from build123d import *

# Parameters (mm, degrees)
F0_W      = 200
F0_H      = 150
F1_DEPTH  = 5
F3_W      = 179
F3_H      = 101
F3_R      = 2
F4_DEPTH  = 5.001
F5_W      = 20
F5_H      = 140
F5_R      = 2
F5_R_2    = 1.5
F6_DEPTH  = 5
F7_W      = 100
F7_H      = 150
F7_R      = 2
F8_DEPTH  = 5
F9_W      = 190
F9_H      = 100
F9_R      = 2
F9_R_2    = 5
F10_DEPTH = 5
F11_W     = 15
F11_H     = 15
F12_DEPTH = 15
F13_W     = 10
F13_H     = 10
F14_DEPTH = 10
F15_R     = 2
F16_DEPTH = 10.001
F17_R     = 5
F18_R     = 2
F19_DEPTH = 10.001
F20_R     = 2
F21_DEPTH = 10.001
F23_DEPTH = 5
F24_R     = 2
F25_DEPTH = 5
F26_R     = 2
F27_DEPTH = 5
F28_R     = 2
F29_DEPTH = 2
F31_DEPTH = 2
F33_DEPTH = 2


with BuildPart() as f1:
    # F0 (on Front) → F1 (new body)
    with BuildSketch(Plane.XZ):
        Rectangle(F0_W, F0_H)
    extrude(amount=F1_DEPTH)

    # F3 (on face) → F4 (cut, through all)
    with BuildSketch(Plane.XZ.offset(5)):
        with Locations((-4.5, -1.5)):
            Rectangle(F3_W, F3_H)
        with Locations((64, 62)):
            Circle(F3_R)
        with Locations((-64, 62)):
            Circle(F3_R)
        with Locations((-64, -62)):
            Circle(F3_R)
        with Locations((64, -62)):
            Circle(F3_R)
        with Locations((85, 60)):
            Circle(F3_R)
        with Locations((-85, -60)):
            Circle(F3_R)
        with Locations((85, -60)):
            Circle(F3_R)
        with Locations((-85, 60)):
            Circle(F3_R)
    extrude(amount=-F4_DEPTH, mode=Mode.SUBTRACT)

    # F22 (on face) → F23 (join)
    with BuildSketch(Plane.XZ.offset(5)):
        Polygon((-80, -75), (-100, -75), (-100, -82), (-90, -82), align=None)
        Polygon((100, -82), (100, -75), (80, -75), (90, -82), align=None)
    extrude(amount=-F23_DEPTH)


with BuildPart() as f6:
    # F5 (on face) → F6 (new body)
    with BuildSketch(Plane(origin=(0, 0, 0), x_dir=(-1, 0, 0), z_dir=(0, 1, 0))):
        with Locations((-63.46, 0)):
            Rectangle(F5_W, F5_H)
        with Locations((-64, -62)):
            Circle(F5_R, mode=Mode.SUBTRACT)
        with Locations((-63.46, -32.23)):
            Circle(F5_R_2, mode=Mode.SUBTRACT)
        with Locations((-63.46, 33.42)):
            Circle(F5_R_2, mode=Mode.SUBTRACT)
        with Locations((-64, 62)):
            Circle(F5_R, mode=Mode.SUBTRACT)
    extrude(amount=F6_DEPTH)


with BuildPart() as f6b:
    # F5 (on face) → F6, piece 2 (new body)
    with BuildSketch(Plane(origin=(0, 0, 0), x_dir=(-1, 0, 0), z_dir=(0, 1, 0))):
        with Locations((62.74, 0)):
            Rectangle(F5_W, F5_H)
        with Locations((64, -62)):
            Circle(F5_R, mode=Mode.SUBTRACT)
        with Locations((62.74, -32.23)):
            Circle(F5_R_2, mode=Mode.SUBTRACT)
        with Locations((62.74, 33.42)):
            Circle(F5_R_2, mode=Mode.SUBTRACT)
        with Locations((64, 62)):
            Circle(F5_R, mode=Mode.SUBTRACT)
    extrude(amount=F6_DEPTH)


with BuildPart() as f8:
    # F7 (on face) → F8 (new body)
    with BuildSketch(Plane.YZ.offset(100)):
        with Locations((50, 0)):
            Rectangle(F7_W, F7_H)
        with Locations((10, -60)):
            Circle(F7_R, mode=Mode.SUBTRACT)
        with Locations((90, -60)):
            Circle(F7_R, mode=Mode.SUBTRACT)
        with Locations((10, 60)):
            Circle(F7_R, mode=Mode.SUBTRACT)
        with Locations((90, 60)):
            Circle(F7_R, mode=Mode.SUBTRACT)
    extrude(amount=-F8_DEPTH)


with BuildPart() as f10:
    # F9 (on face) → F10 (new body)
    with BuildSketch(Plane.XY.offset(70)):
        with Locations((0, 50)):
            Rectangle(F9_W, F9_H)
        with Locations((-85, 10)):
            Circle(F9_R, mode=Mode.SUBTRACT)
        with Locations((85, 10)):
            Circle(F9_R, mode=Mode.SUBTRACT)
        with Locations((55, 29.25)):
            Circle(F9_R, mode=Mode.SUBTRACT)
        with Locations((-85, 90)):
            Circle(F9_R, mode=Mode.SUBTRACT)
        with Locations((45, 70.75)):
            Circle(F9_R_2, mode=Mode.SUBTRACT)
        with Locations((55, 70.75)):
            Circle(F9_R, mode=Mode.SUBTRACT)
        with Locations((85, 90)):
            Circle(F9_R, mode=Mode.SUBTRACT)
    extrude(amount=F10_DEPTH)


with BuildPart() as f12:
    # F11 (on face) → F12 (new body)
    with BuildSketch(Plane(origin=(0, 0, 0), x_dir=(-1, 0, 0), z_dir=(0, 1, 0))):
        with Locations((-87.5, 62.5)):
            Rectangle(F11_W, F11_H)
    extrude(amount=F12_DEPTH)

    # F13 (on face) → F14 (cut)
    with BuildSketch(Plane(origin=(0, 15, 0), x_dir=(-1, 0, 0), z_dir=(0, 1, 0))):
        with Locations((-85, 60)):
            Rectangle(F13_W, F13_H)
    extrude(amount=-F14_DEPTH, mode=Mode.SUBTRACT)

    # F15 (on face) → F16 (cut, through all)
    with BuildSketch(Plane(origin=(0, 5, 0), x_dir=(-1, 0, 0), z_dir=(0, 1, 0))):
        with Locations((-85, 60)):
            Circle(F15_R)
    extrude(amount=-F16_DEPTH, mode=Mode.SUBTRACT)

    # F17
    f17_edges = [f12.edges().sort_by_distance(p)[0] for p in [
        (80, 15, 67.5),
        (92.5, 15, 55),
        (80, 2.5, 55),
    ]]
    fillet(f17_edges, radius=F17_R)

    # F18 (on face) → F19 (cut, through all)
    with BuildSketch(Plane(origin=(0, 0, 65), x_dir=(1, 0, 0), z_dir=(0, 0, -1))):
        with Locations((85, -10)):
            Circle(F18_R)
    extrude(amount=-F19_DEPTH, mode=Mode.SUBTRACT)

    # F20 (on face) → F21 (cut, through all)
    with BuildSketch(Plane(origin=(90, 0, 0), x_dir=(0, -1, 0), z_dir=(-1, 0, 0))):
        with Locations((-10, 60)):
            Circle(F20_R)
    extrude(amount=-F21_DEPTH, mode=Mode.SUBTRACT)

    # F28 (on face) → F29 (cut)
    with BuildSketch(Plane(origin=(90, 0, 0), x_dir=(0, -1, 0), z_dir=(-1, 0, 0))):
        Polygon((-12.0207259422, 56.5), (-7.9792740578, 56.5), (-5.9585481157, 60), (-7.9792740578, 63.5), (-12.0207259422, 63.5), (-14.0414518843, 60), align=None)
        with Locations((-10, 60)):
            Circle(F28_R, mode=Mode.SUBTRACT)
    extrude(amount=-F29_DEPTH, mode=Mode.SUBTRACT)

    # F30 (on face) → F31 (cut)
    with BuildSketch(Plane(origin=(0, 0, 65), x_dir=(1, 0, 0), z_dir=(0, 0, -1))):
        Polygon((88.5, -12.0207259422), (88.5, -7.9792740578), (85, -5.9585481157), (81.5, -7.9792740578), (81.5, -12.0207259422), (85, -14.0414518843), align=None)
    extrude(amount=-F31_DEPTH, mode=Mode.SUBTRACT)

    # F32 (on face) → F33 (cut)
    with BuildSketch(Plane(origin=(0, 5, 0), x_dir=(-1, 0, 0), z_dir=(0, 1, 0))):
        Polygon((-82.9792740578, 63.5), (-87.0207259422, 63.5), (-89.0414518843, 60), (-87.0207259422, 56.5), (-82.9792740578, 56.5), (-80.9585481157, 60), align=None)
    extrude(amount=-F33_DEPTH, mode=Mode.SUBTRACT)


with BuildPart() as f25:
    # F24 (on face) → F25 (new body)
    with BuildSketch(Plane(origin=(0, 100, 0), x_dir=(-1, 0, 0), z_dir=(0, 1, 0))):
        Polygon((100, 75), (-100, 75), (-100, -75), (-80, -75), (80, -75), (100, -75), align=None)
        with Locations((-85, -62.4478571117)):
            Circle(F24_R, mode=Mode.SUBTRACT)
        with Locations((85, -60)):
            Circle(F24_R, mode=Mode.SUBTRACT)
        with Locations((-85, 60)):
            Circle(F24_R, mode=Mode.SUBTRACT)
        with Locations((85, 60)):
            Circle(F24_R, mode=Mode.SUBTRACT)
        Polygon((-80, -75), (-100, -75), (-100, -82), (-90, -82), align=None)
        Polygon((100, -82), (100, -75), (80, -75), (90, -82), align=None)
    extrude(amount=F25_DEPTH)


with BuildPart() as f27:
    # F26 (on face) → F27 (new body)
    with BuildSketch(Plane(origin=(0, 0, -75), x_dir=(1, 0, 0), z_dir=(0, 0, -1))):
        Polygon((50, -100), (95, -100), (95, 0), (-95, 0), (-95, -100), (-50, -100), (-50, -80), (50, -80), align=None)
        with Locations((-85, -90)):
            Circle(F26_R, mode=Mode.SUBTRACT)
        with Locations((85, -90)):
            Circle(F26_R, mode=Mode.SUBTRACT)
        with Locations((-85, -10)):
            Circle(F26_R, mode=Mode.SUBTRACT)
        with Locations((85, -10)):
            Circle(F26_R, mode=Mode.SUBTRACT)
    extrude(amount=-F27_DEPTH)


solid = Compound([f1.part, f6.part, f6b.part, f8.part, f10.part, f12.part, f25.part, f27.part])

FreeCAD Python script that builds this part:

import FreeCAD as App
import Part
import Sketcher
Q = App.Units.Quantity


def edges_at(feature, points):
    """Names of the edges that pass closest to the given points."""
    edges = feature.Shape.Edges
    near = lambda p: min(range(len(edges)), key=lambda i: edges[i].distToShape(Part.Vertex(*p))[0])
    return sorted({f"Edge{near(p) + 1}" for p in points})

doc = App.newDocument("Part")
params = doc.addObject("Spreadsheet::Sheet", "Params")
for row, (alias, value) in enumerate([
    ("sketch1_width", "200 mm"),
    ("sketch1_height", "150 mm"),
    ("pad1_length", "5 mm"),
    ("sketch2_diameter", "4 mm"),
    ("sketch2_width", "179 mm"),
    ("sketch2_height", "101 mm"),
    ("sketch3_width", "20 mm"),
    ("sketch3_width2", "10 mm"),
    ("sketch3_height", "7 mm"),
    ("pad2_length", "5 mm"),
    ("sketch4_diameter", "4 mm"),
    ("sketch4_diameter2", "3 mm"),
    ("sketch4_width", "20 mm"),
    ("sketch4_height", "140 mm"),
    ("pad3_length", "5 mm"),
    ("sketch5_diameter", "3 mm"),
    ("sketch5_diameter2", "4 mm"),
    ("sketch5_width", "20 mm"),
    ("sketch5_height", "140 mm"),
    ("pad4_length", "5 mm"),
    ("sketch6_diameter", "4 mm"),
    ("sketch6_width", "100 mm"),
    ("sketch6_height", "150 mm"),
    ("pad5_length", "5 mm"),
    ("sketch7_diameter", "4 mm"),
    ("sketch7_diameter2", "10 mm"),
    ("sketch7_width", "190 mm"),
    ("sketch7_height", "100 mm"),
    ("pad6_length", "5 mm"),
    ("sketch8_width", "15 mm"),
    ("pad7_length", "15 mm"),
    ("sketch9_width", "10 mm"),
    ("pocket2_length", "10 mm"),
    ("sketch10_diameter", "4 mm"),
    ("fillet_radius", "5 mm"),
    ("sketch11_diameter", "4 mm"),
    ("sketch12_diameter", "4 mm"),
    ("sketch13_diameter", "4 mm"),
    ("pocket6_length", "2 mm"),
    ("pocket7_length", "2 mm"),
    ("pocket8_length", "2 mm"),
    ("sketch16_diameter", "4 mm"),
    ("sketch16_width", "200 mm"),
    ("sketch16_width2", "10 mm"),
    ("sketch16_width3", "160 mm"),
    ("sketch16_height", "157 mm"),
    ("pad8_length", "5 mm"),
    ("sketch17_diameter", "4 mm"),
    ("sketch17_width", "45 mm"),
    ("sketch17_width2", "190 mm"),
    ("sketch17_height", "20 mm"),
    ("pad9_length", "5 mm"),
], start=1):
    params.set(f"A{row}", alias)
    params.set(f"B{row}", "=" + value)
    params.setAlias(f"B{row}", alias)

body = doc.addObject("PartDesign::Body", "Body")

# Sketch on XZ plane
sketch1 = body.newObject("Sketcher::SketchObject", "Sketch")
sketch1.AttachmentSupport = (doc.getObject("XZ_Plane"), [""])
sketch1.MapMode = "FlatFace"
sketch1.addGeometry([
    Part.LineSegment(App.Vector(-100, 75, 0), App.Vector(-100, -75, 0)),
    Part.LineSegment(App.Vector(-100, -75, 0), App.Vector(100, -75, 0)),
    Part.LineSegment(App.Vector(100, -75, 0), App.Vector(100, 75, 0)),
    Part.LineSegment(App.Vector(100, 75, 0), App.Vector(-100, 75, 0)),
], False)
sketch1.addConstraint([
    Sketcher.Constraint("Coincident", 0, 2, 1, 1),
    Sketcher.Constraint("Coincident", 1, 2, 2, 1),
    Sketcher.Constraint("Coincident", 2, 2, 3, 1),
    Sketcher.Constraint("Coincident", 3, 2, 0, 1),
    Sketcher.Constraint("Vertical", 0),
    Sketcher.Constraint("Horizontal", 1),
    Sketcher.Constraint("Vertical", 2),
    Sketcher.Constraint("Horizontal", 3),
    Sketcher.Constraint("Symmetric", 0, 2, 2, 2, -1, 1),
    Sketcher.Constraint("DistanceX", 1, 1, 1, 2, 200.0),
    Sketcher.Constraint("DistanceY", 0, 2, 0, 1, 150.0),
])
sketch1.setExpression("Constraints[9]", "Params.sketch1_width")
sketch1.setExpression("Constraints[10]", "Params.sketch1_height")
pad1 = body.newObject("PartDesign::Pad", "Pad")
pad1.Profile = sketch1
pad1.setExpression("Length", "Params.pad1_length")

# Sketch on XZ plane
sketch2 = body.newObject("Sketcher::SketchObject", "Sketch001")
sketch2.AttachmentSupport = (doc.getObject("XZ_Plane"), [""])
sketch2.MapMode = "FlatFace"
sketch2.AttachmentOffset = App.Placement(App.Vector(0, 0, 5), App.Rotation())
sketch2.addGeometry([
    Part.LineSegment(App.Vector(-94, 49, 0), App.Vector(-94, -52, 0)),  # 0
    Part.LineSegment(App.Vector(-94, -52, 0), App.Vector(85, -52, 0)),  # 1
    Part.LineSegment(App.Vector(85, -52, 0), App.Vector(85, 49, 0)),  # 2
    Part.LineSegment(App.Vector(85, 49, 0), App.Vector(-94, 49, 0)),  # 3
    Part.Circle(App.Vector(64, 62, 0), App.Vector(0, 0, 1), 2),  # 4
    Part.Circle(App.Vector(-64, 62, 0), App.Vector(0, 0, 1), 2),  # 5
    Part.Circle(App.Vector(-64, -62, 0), App.Vector(0, 0, 1), 2),  # 6
    Part.Circle(App.Vector(64, -62, 0), App.Vector(0, 0, 1), 2),  # 7
    Part.Circle(App.Vector(85, 60, 0), App.Vector(0, 0, 1), 2),  # 8
    Part.Circle(App.Vector(-85, -60, 0), App.Vector(0, 0, 1), 2),  # 9
    Part.Circle(App.Vector(85, -60, 0), App.Vector(0, 0, 1), 2),  # 10
    Part.Circle(App.Vector(-85, 60, 0), App.Vector(0, 0, 1), 2),  # 11
], False)
sketch2.addConstraint([
    Sketcher.Constraint("Coincident", 0, 2, 1, 1),
    Sketcher.Constraint("Coincident", 1, 2, 2, 1),
    Sketcher.Constraint("Coincident", 2, 2, 3, 1),
    Sketcher.Constraint("Coincident", 3, 2, 0, 1),
    Sketcher.Constraint("Vertical", 0),
    Sketcher.Constraint("Horizontal", 1),
    Sketcher.Constraint("Vertical", 2),
    Sketcher.Constraint("Horizontal", 3),
    Sketcher.Constraint("Equal", 4, 5),
    Sketcher.Constraint("Equal", 5, 6),
    Sketcher.Constraint("Equal", 6, 7),
    Sketcher.Constraint("Equal", 7, 8),
    Sketcher.Constraint("Equal", 8, 9),
    Sketcher.Constraint("Equal", 9, 10),
    Sketcher.Constraint("Equal", 10, 11),
    Sketcher.Constraint("Symmetric", 4, 3, 6, 3, -1, 1),
    Sketcher.Constraint("Symmetric", 5, 3, 7, 3, -1, 1),
    Sketcher.Constraint("Symmetric", 8, 3, 9, 3, -1, 1),
    Sketcher.Constraint("Symmetric", 10, 3, 11, 3, -1, 1),
    Sketcher.Constraint("Symmetric", 4, 3, 5, 3, -2),
    Sketcher.Constraint("Symmetric", 9, 3, 10, 3, -2),
    Sketcher.Constraint("Vertical", 10, 3, 1, 2),
    Sketcher.Constraint("Diameter", 4, 4.0),
    Sketcher.Constraint("DistanceX", 1, 1, 1, 2, 179.0),
    Sketcher.Constraint("DistanceY", 0, 2, 0, 1, 101.0),
    Sketcher.Constraint("DistanceX", -1, 1, 4, 3, 64.0),
    Sketcher.Constraint("DistanceY", -1, 1, 4, 3, 62.0),
    Sketcher.Constraint("DistanceX", -1, 1, 8, 3, 85.0),
    Sketcher.Constraint("DistanceY", -1, 1, 8, 3, 60.0),
    Sketcher.Constraint("DistanceY", 0, 2, -1, 1, 52.0),
])
sketch2.setExpression("Constraints[22]", "Params.sketch2_diameter")
sketch2.setExpression("Constraints[23]", "Params.sketch2_width")
sketch2.setExpression("Constraints[24]", "Params.sketch2_height")
pocket1 = body.newObject("PartDesign::Pocket", "Pocket")
pocket1.Profile = sketch2
pocket1.Type = "ThroughAll"

# Sketch on XZ plane
sketch3 = body.newObject("Sketcher::SketchObject", "Sketch002")
sketch3.AttachmentSupport = (doc.getObject("XZ_Plane"), [""])
sketch3.MapMode = "FlatFace"
sketch3.AttachmentOffset = App.Placement(App.Vector(0, 0, 5), App.Rotation())
sketch3.addGeometry([
    Part.LineSegment(App.Vector(-80, -75, 0), App.Vector(-100, -75, 0)),  # 0
    Part.LineSegment(App.Vector(-100, -75, 0), App.Vector(-100, -82, 0)),  # 1
    Part.LineSegment(App.Vector(-100, -82, 0), App.Vector(-90, -82, 0)),  # 2
    Part.LineSegment(App.Vector(-90, -82, 0), App.Vector(-80, -75, 0)),  # 3
    Part.LineSegment(App.Vector(100, -82, 0), App.Vector(100, -75, 0)),  # 4
    Part.LineSegment(App.Vector(100, -75, 0), App.Vector(80, -75, 0)),  # 5
    Part.LineSegment(App.Vector(80, -75, 0), App.Vector(90, -82, 0)),  # 6
    Part.LineSegment(App.Vector(90, -82, 0), App.Vector(100, -82, 0)),  # 7
], False)
sketch3.addConstraint([
    Sketcher.Constraint("Coincident", 0, 2, 1, 1),
    Sketcher.Constraint("Coincident", 1, 2, 2, 1),
    Sketcher.Constraint("Coincident", 2, 2, 3, 1),
    Sketcher.Constraint("Coincident", 3, 2, 0, 1),
    Sketcher.Constraint("Coincident", 4, 2, 5, 1),
    Sketcher.Constraint("Coincident", 5, 2, 6, 1),
    Sketcher.Constraint("Coincident", 6, 2, 7, 1),
    Sketcher.Constraint("Coincident", 7, 2, 4, 1),
    Sketcher.Constraint("Horizontal", 0),
    Sketcher.Constraint("Vertical", 1),
    Sketcher.Constraint("Horizontal", 2),
    Sketcher.Constraint("Vertical", 4),
    Sketcher.Constraint("Horizontal", 5),
    Sketcher.Constraint("Horizontal", 7),
    Sketcher.Constraint("Symmetric", 0, 2, 4, 2, -2),
    Sketcher.Constraint("Symmetric", 2, 2, 6, 2, -2),
    Sketcher.Constraint("Equal", 0, 5),
    Sketcher.Constraint("DistanceX", 0, 2, 0, 1, 20.0),
    Sketcher.Constraint("DistanceX", 2, 1, 2, 2, 10.0),
    Sketcher.Constraint("DistanceY", 1, 2, 1, 1, 7.0),
    Sketcher.Constraint("DistanceX", 0, 2, -1, 1, 100.0),
    Sketcher.Constraint("DistanceY", 0, 2, -1, 1, 75.0),
])
sketch3.setExpression("Constraints[17]", "Params.sketch3_width")
sketch3.setExpression("Constraints[18]", "Params.sketch3_width2")
sketch3.setExpression("Constraints[19]", "Params.sketch3_height")
pad2 = body.newObject("PartDesign::Pad", "Pad001")
pad2.Profile = sketch3
pad2.setExpression("Length", "Params.pad2_length")
pad2.Reversed = True
body2 = doc.addObject("PartDesign::Body", "Body001")

# Sketch on XZ plane
sketch4 = body2.newObject("Sketcher::SketchObject", "Sketch003")
sketch4.AttachmentSupport = (doc.getObject("XZ_Plane001"), [""])
sketch4.MapMode = "FlatFace"
sketch4.addGeometry([
    Part.LineSegment(App.Vector(73.5, 70, 0), App.Vector(73.5, -70, 0)),  # 0
    Part.LineSegment(App.Vector(73.5, -70, 0), App.Vector(53.5, -70, 0)),  # 1
    Part.LineSegment(App.Vector(53.5, -70, 0), App.Vector(53.5, 70, 0)),  # 2
    Part.LineSegment(App.Vector(53.5, 70, 0), App.Vector(73.5, 70, 0)),  # 3
    Part.Circle(App.Vector(64, -62, 0), App.Vector(0, 0, 1), 2),  # 4
    Part.Circle(App.Vector(63.5, -32.2, 0), App.Vector(0, 0, 1), 1.5),  # 5
    Part.Circle(App.Vector(64, 62, 0), App.Vector(0, 0, 1), 2),  # 6
    Part.Circle(App.Vector(63.5, 33.4, 0), App.Vector(0, 0, 1), 1.5),  # 7
], False)
sketch4.addConstraint([
    Sketcher.Constraint("Coincident", 0, 2, 1, 1),
    Sketcher.Constraint("Coincident", 1, 2, 2, 1),
    Sketcher.Constraint("Coincident", 2, 2, 3, 1),
    Sketcher.Constraint("Coincident", 3, 2, 0, 1),
    Sketcher.Constraint("Vertical", 0),
    Sketcher.Constraint("Horizontal", 1),
    Sketcher.Constraint("Vertical", 2),
    Sketcher.Constraint("Horizontal", 3),
    Sketcher.Constraint("Equal", 4, 6),
    Sketcher.Constraint("Equal", 5, 7),
    Sketcher.Constraint("Symmetric", 4, 3, 6, 3, -1),
    Sketcher.Constraint("Vertical", 5, 3, 7, 3),
    Sketcher.Constraint("Diameter", 4, 4.0),
    Sketcher.Constraint("Diameter", 5, 3.0),
    Sketcher.Constraint("DistanceX", 1, 2, 1, 1, 20.0),
    Sketcher.Constraint("DistanceY", 0, 2, 0, 1, 140.0),
    Sketcher.Constraint("DistanceX", -1, 1, 4, 3, 64.0),
    Sketcher.Constraint("DistanceY", 4, 3, -1, 1, 62.0),
    Sketcher.Constraint("DistanceY", 0, 2, -1, 1, 70.0),
    Sketcher.Constraint("DistanceX", 5, 3, 0, 2, 10.0),
    Sketcher.Constraint("DistanceX", -1, 1, 5, 3, 63.46),
    Sketcher.Constraint("DistanceY", 5, 3, -1, 1, 32.23),
    Sketcher.Constraint("DistanceY", -1, 1, 7, 3, 33.42),
])
sketch4.setExpression("Constraints[12]", "Params.sketch4_diameter")
sketch4.setExpression("Constraints[13]", "Params.sketch4_diameter2")
sketch4.setExpression("Constraints[14]", "Params.sketch4_width")
sketch4.setExpression("Constraints[15]", "Params.sketch4_height")
pad3 = body2.newObject("PartDesign::Pad", "Pad002")
pad3.Profile = sketch4
pad3.setExpression("Length", "Params.pad3_length")
pad3.Reversed = True
body3 = doc.addObject("PartDesign::Body", "Body002")

# Sketch on XZ plane
sketch5 = body3.newObject("Sketcher::SketchObject", "Sketch004")
sketch5.AttachmentSupport = (doc.getObject("XZ_Plane002"), [""])
sketch5.MapMode = "FlatFace"
sketch5.addGeometry([
    Part.LineSegment(App.Vector(-52.7, 70, 0), App.Vector(-52.7, -70, 0)),  # 0
    Part.LineSegment(App.Vector(-52.7, -70, 0), App.Vector(-72.7, -70, 0)),  # 1
    Part.LineSegment(App.Vector(-72.7, -70, 0), App.Vector(-72.7, 70, 0)),  # 2
    Part.LineSegment(App.Vector(-72.7, 70, 0), App.Vector(-52.7, 70, 0)),  # 3
    Part.Circle(App.Vector(-62.7, -32.2, 0), App.Vector(0, 0, 1), 1.5),  # 4
    Part.Circle(App.Vector(-64, -62, 0), App.Vector(0, 0, 1), 2),  # 5
    Part.Circle(App.Vector(-62.7, 33.4, 0), App.Vector(0, 0, 1), 1.5),  # 6
    Part.Circle(App.Vector(-64, 62, 0), App.Vector(0, 0, 1), 2),  # 7
], False)
sketch5.addConstraint([
    Sketcher.Constraint("Coincident", 0, 2, 1, 1),
    Sketcher.Constraint("Coincident", 1, 2, 2, 1),
    Sketcher.Constraint("Coincident", 2, 2, 3, 1),
    Sketcher.Constraint("Coincident", 3, 2, 0, 1),
    Sketcher.Constraint("Vertical", 0),
    Sketcher.Constraint("Horizontal", 1),
    Sketcher.Constraint("Vertical", 2),
    Sketcher.Constraint("Horizontal", 3),
    Sketcher.Constraint("Equal", 4, 6),
    Sketcher.Constraint("Equal", 5, 7),
    Sketcher.Constraint("Symmetric", 5, 3, 7, 3, -1),
    Sketcher.Constraint("Vertical", 4, 3, 6, 3),
    Sketcher.Constraint("Diameter", 4, 3.0),
    Sketcher.Constraint("Diameter", 5, 4.0),
    Sketcher.Constraint("DistanceX", 1, 2, 1, 1, 20.0),
    Sketcher.Constraint("DistanceY", 0, 2, 0, 1, 140.0),
    Sketcher.Constraint("DistanceX", 5, 3, -1, 1, 64.0),
    Sketcher.Constraint("DistanceY", 5, 3, -1, 1, 62.0),
    Sketcher.Constraint("DistanceY", 0, 2, -1, 1, 70.0),
    Sketcher.Constraint("DistanceX", 4, 3, 0, 2, 10.0),
    Sketcher.Constraint("DistanceX", 4, 3, -1, 1, 62.74),
    Sketcher.Constraint("DistanceY", 4, 3, -1, 1, 32.23),
    Sketcher.Constraint("DistanceY", -1, 1, 6, 3, 33.42),
])
sketch5.setExpression("Constraints[12]", "Params.sketch5_diameter")
sketch5.setExpression("Constraints[13]", "Params.sketch5_diameter2")
sketch5.setExpression("Constraints[14]", "Params.sketch5_width")
sketch5.setExpression("Constraints[15]", "Params.sketch5_height")
pad4 = body3.newObject("PartDesign::Pad", "Pad003")
pad4.Profile = sketch5
pad4.setExpression("Length", "Params.pad4_length")
pad4.Reversed = True
body4 = doc.addObject("PartDesign::Body", "Body003")

# Sketch on YZ plane
sketch6 = body4.newObject("Sketcher::SketchObject", "Sketch005")
sketch6.AttachmentSupport = (doc.getObject("YZ_Plane003"), [""])
sketch6.MapMode = "FlatFace"
sketch6.AttachmentOffset = App.Placement(App.Vector(0, 0, 100), App.Rotation())
sketch6.addGeometry([
    Part.LineSegment(App.Vector(0, 75, 0), App.Vector(0, -75, 0)),  # 0
    Part.LineSegment(App.Vector(0, -75, 0), App.Vector(100, -75, 0)),  # 1
    Part.LineSegment(App.Vector(100, -75, 0), App.Vector(100, 75, 0)),  # 2
    Part.LineSegment(App.Vector(100, 75, 0), App.Vector(0, 75, 0)),  # 3
    Part.Circle(App.Vector(10, -60, 0), App.Vector(0, 0, 1), 2),  # 4
    Part.Circle(App.Vector(90, -60, 0), App.Vector(0, 0, 1), 2),  # 5
    Part.Circle(App.Vector(10, 60, 0), App.Vector(0, 0, 1), 2),  # 6
    Part.Circle(App.Vector(90, 60, 0), App.Vector(0, 0, 1), 2),  # 7
], False)
sketch6.addConstraint([
    Sketcher.Constraint("Coincident", 0, 2, 1, 1),
    Sketcher.Constraint("Coincident", 1, 2, 2, 1),
    Sketcher.Constraint("Coincident", 2, 2, 3, 1),
    Sketcher.Constraint("Coincident", 3, 2, 0, 1),
    Sketcher.Constraint("Vertical", 0),
    Sketcher.Constraint("Horizontal", 1),
    Sketcher.Constraint("Vertical", 2),
    Sketcher.Constraint("Horizontal", 3),
    Sketcher.Constraint("Equal", 4, 5),
    Sketcher.Constraint("Equal", 5, 6),
    Sketcher.Constraint("Equal", 6, 7),
    Sketcher.Constraint("Symmetric", 0, 2, 3, 2, -1, 1),
    Sketcher.Constraint("Symmetric", 4, 3, 6, 3, -1),
    Sketcher.Constraint("Symmetric", 5, 3, 7, 3, -1),
    Sketcher.Constraint("Horizontal", 4, 3, 5, 3),
    Sketcher.Constraint("Diameter", 4, 4.0),
    Sketcher.Constraint("DistanceX", 1, 1, 1, 2, 100.0),
    Sketcher.Constraint("DistanceY", 0, 2, 0, 1, 150.0),
    Sketcher.Constraint("DistanceX", -1, 1, 4, 3, 10.0),
    Sketcher.Constraint("DistanceY", 4, 3, -1, 1, 60.0),
    Sketcher.Constraint("DistanceX", -1, 1, 5, 3, 90.0),
])
sketch6.setExpression("Constraints[15]", "Params.sketch6_diameter")
sketch6.setExpression("Constraints[16]", "Params.sketch6_width")
sketch6.setExpression("Constraints[17]", "Params.sketch6_height")
pad5 = body4.newObject("PartDesign::Pad", "Pad004")
pad5.Profile = sketch6
pad5.setExpression("Length", "Params.pad5_length")
pad5.Reversed = True
body5 = doc.addObject("PartDesign::Body", "Body004")

# Sketch on XY plane
sketch7 = body5.newObject("Sketcher::SketchObject", "Sketch006")
sketch7.AttachmentSupport = (doc.getObject("XY_Plane004"), [""])
sketch7.MapMode = "FlatFace"
sketch7.AttachmentOffset = App.Placement(App.Vector(0, 0, 70), App.Rotation())
sketch7.addGeometry([
    Part.LineSegment(App.Vector(-95, 100, 0), App.Vector(-95, 0, 0)),  # 0
    Part.LineSegment(App.Vector(-95, 0, 0), App.Vector(95, 0, 0)),  # 1
    Part.LineSegment(App.Vector(95, 0, 0), App.Vector(95, 100, 0)),  # 2
    Part.LineSegment(App.Vector(95, 100, 0), App.Vector(-95, 100, 0)),  # 3
    Part.Circle(App.Vector(-85, 10, 0), App.Vector(0, 0, 1), 2),  # 4
    Part.Circle(App.Vector(85, 10, 0), App.Vector(0, 0, 1), 2),  # 5
    Part.Circle(App.Vector(55, 29.2, 0), App.Vector(0, 0, 1), 2),  # 6
    Part.Circle(App.Vector(-85, 90, 0), App.Vector(0, 0, 1), 2),  # 7
    Part.Circle(App.Vector(45, 70.8, 0), App.Vector(0, 0, 1), 5),  # 8
    Part.Circle(App.Vector(55, 70.8, 0), App.Vector(0, 0, 1), 2),  # 9
    Part.Circle(App.Vector(85, 90, 0), App.Vector(0, 0, 1), 2),  # 10
], False)
sketch7.addConstraint([
    Sketcher.Constraint("Coincident", 0, 2, 1, 1),
    Sketcher.Constraint("Coincident", 1, 2, 2, 1),
    Sketcher.Constraint("Coincident", 2, 2, 3, 1),
    Sketcher.Constraint("Coincident", 3, 2, 0, 1),
    Sketcher.Constraint("Vertical", 0),
    Sketcher.Constraint("Horizontal", 1),
    Sketcher.Constraint("Vertical", 2),
    Sketcher.Constraint("Horizontal", 3),
    Sketcher.Constraint("Equal", 4, 5),
    Sketcher.Constraint("Equal", 5, 6),
    Sketcher.Constraint("Equal", 6, 7),
    Sketcher.Constraint("Equal", 7, 9),
    Sketcher.Constraint("Equal", 9, 10),
    Sketcher.Constraint("Symmetric", 0, 2, 1, 2, -1, 1),
    Sketcher.Constraint("Symmetric", 4, 3, 5, 3, -2),
    Sketcher.Constraint("Symmetric", 7, 3, 10, 3, -2),
    Sketcher.Constraint("Horizontal", 8, 3, 9, 3),
    Sketcher.Constraint("Vertical", 4, 3, 7, 3),
    Sketcher.Constraint("Vertical", 6, 3, 9, 3),
    Sketcher.Constraint("Diameter", 4, 4.0),
    Sketcher.Constraint("Diameter", 8, 10.0),
    Sketcher.Constraint("DistanceX", 1, 1, 1, 2, 190.0),
    Sketcher.Constraint("DistanceY", 0, 2, 0, 1, 100.0),
    Sketcher.Constraint("DistanceX", 4, 3, -1, 1, 85.0),
    Sketcher.Constraint("DistanceY", -1, 1, 4, 3, 10.0),
    Sketcher.Constraint("DistanceX", -1, 1, 6, 3, 55.0),
    Sketcher.Constraint("DistanceY", -1, 1, 7, 3, 90.0),
    Sketcher.Constraint("DistanceX", -1, 1, 8, 3, 45.0),
    Sketcher.Constraint("DistanceY", 6, 3, 8, 3, 41.5),
    Sketcher.Constraint("DistanceY", -1, 1, 6, 3, 29.25),
])
sketch7.setExpression("Constraints[19]", "Params.sketch7_diameter")
sketch7.setExpression("Constraints[20]", "Params.sketch7_diameter2")
sketch7.setExpression("Constraints[21]", "Params.sketch7_width")
sketch7.setExpression("Constraints[22]", "Params.sketch7_height")
pad6 = body5.newObject("PartDesign::Pad", "Pad005")
pad6.Profile = sketch7
pad6.setExpression("Length", "Params.pad6_length")
body6 = doc.addObject("PartDesign::Body", "Body005")

# Sketch on XZ plane
sketch8 = body6.newObject("Sketcher::SketchObject", "Sketch007")
sketch8.AttachmentSupport = (doc.getObject("XZ_Plane005"), [""])
sketch8.MapMode = "FlatFace"
sketch8.addGeometry([
    Part.LineSegment(App.Vector(95, 70, 0), App.Vector(95, 55, 0)),
    Part.LineSegment(App.Vector(95, 55, 0), App.Vector(80, 55, 0)),
    Part.LineSegment(App.Vector(80, 55, 0), App.Vector(80, 70, 0)),
    Part.LineSegment(App.Vector(80, 70, 0), App.Vector(95, 70, 0)),
], False)
sketch8.addConstraint([
    Sketcher.Constraint("Coincident", 0, 2, 1, 1),
    Sketcher.Constraint("Coincident", 1, 2, 2, 1),
    Sketcher.Constraint("Coincident", 2, 2, 3, 1),
    Sketcher.Constraint("Coincident", 3, 2, 0, 1),
    Sketcher.Constraint("Vertical", 0),
    Sketcher.Constraint("Horizontal", 1),
    Sketcher.Constraint("Vertical", 2),
    Sketcher.Constraint("Horizontal", 3),
    Sketcher.Constraint("Equal", 3, 0),
    Sketcher.Constraint("DistanceX", 1, 2, 1, 1, 15.0),
    Sketcher.Constraint("DistanceX", -1, 1, 0, 2, 95.0),
    Sketcher.Constraint("DistanceY", -1, 1, 0, 2, 55.0),
])
sketch8.setExpression("Constraints[9]", "Params.sketch8_width")
pad7 = body6.newObject("PartDesign::Pad", "Pad006")
pad7.Profile = sketch8
pad7.setExpression("Length", "Params.pad7_length")
pad7.Reversed = True

# Sketch on XZ plane
sketch9 = body6.newObject("Sketcher::SketchObject", "Sketch008")
sketch9.AttachmentSupport = (doc.getObject("XZ_Plane005"), [""])
sketch9.MapMode = "FlatFace"
sketch9.AttachmentOffset = App.Placement(App.Vector(0, 0, -15), App.Rotation())
sketch9.addGeometry([
    Part.LineSegment(App.Vector(90, 65, 0), App.Vector(90, 55, 0)),
    Part.LineSegment(App.Vector(90, 55, 0), App.Vector(80, 55, 0)),
    Part.LineSegment(App.Vector(80, 55, 0), App.Vector(80, 65, 0)),
    Part.LineSegment(App.Vector(80, 65, 0), App.Vector(90, 65, 0)),
], False)
sketch9.addConstraint([
    Sketcher.Constraint("Coincident", 0, 2, 1, 1),
    Sketcher.Constraint("Coincident", 1, 2, 2, 1),
    Sketcher.Constraint("Coincident", 2, 2, 3, 1),
    Sketcher.Constraint("Coincident", 3, 2, 0, 1),
    Sketcher.Constraint("Vertical", 0),
    Sketcher.Constraint("Horizontal", 1),
    Sketcher.Constraint("Vertical", 2),
    Sketcher.Constraint("Horizontal", 3),
    Sketcher.Constraint("Equal", 3, 0),
    Sketcher.Constraint("DistanceX", 1, 2, 1, 1, 10.0),
    Sketcher.Constraint("DistanceX", -1, 1, 0, 2, 90.0),
    Sketcher.Constraint("DistanceY", -1, 1, 0, 2, 55.0),
])
sketch9.setExpression("Constraints[9]", "Params.sketch9_width")
pocket2 = body6.newObject("PartDesign::Pocket", "Pocket001")
pocket2.Profile = sketch9
pocket2.setExpression("Length", "Params.pocket2_length")
pocket2.Reversed = True

# Sketch on XZ plane
sketch10 = body6.newObject("Sketcher::SketchObject", "Sketch009")
sketch10.AttachmentSupport = (doc.getObject("XZ_Plane005"), [""])
sketch10.MapMode = "FlatFace"
sketch10.AttachmentOffset = App.Placement(App.Vector(0, 0, -5), App.Rotation())
sketch10.addGeometry(Part.Circle(App.Vector(85, 60, 0), App.Vector(0, 0, 1), 2), False)
sketch10.addConstraint([
    Sketcher.Constraint("Diameter", 0, 4.0),
    Sketcher.Constraint("DistanceX", -1, 1, 0, 3, 85.0),
    Sketcher.Constraint("DistanceY", -1, 1, 0, 3, 60.0),
])
sketch10.setExpression("Constraints[0]", "Params.sketch10_diameter")
pocket3 = body6.newObject("PartDesign::Pocket", "Pocket002")
pocket3.Profile = sketch10
pocket3.Type = "ThroughAll"
pocket3.Reversed = True
doc.recompute()

fillet = body6.newObject("PartDesign::Fillet", "Fillet")
fillet.Base = (pocket3, edges_at(pocket3, [(80, 15, 67.5), (92.5, 15, 55), (80, 2.5, 55)]))
fillet.setExpression("Radius", "Params.fillet_radius")

# Sketch on XY plane
sketch11 = body6.newObject("Sketcher::SketchObject", "Sketch010")
sketch11.AttachmentSupport = (doc.getObject("XY_Plane005"), [""])
sketch11.MapMode = "FlatFace"
sketch11.AttachmentOffset = App.Placement(App.Vector(0, 0, 65), App.Rotation())
sketch11.addGeometry(Part.Circle(App.Vector(85, 10, 0), App.Vector(0, 0, 1), 2), False)
sketch11.addConstraint([
    Sketcher.Constraint("Diameter", 0, 4.0),
    Sketcher.Constraint("DistanceX", -1, 1, 0, 3, 85.0),
    Sketcher.Constraint("DistanceY", -1, 1, 0, 3, 10.0),
])
sketch11.setExpression("Constraints[0]", "Params.sketch11_diameter")
pocket4 = body6.newObject("PartDesign::Pocket", "Pocket003")
pocket4.Profile = sketch11
pocket4.Type = "ThroughAll"
pocket4.Reversed = True

# Sketch on YZ plane
sketch12 = body6.newObject("Sketcher::SketchObject", "Sketch011")
sketch12.AttachmentSupport = (doc.getObject("YZ_Plane005"), [""])
sketch12.MapMode = "FlatFace"
sketch12.AttachmentOffset = App.Placement(App.Vector(0, 0, 90), App.Rotation())
sketch12.addGeometry(Part.Circle(App.Vector(10, 60, 0), App.Vector(0, 0, 1), 2), False)
sketch12.addConstraint([
    Sketcher.Constraint("Diameter", 0, 4.0),
    Sketcher.Constraint("DistanceX", -1, 1, 0, 3, 10.0),
    Sketcher.Constraint("DistanceY", -1, 1, 0, 3, 60.0),
])
sketch12.setExpression("Constraints[0]", "Params.sketch12_diameter")
pocket5 = body6.newObject("PartDesign::Pocket", "Pocket004")
pocket5.Profile = sketch12
pocket5.Type = "ThroughAll"
pocket5.Reversed = True

# Sketch on YZ plane
sketch13 = body6.newObject("Sketcher::SketchObject", "Sketch012")
sketch13.AttachmentSupport = (doc.getObject("YZ_Plane005"), [""])
sketch13.MapMode = "FlatFace"
sketch13.AttachmentOffset = App.Placement(App.Vector(0, 0, 90), App.Rotation())
sketch13.addGeometry([
    Part.LineSegment(App.Vector(12, 56.5, 0), App.Vector(8, 56.5, 0)),  # 0
    Part.LineSegment(App.Vector(8, 56.5, 0), App.Vector(6, 60, 0)),  # 1
    Part.LineSegment(App.Vector(6, 60, 0), App.Vector(8, 63.5, 0)),  # 2
    Part.LineSegment(App.Vector(8, 63.5, 0), App.Vector(12, 63.5, 0)),  # 3
    Part.LineSegment(App.Vector(12, 63.5, 0), App.Vector(14, 60, 0)),  # 4
    Part.LineSegment(App.Vector(14, 60, 0), App.Vector(12, 56.5, 0)),  # 5
    Part.Circle(App.Vector(10, 60, 0), App.Vector(0, 0, 1), 2),  # 6
], False)
sketch13.addConstraint([
    Sketcher.Constraint("Coincident", 0, 2, 1, 1),
    Sketcher.Constraint("Coincident", 1, 2, 2, 1),
    Sketcher.Constraint("Coincident", 2, 2, 3, 1),
    Sketcher.Constraint("Coincident", 3, 2, 4, 1),
    Sketcher.Constraint("Coincident", 4, 2, 5, 1),
    Sketcher.Constraint("Coincident", 5, 2, 0, 1),
    Sketcher.Constraint("Horizontal", 0),
    Sketcher.Constraint("Horizontal", 3),
    Sketcher.Constraint("Parallel", 1, 4),
    Sketcher.Constraint("Parallel", 2, 5),
    Sketcher.Constraint("Horizontal", 6, 3, 1, 2),
    Sketcher.Constraint("Horizontal", 1, 2, 4, 2),
    Sketcher.Constraint("Vertical", 0, 2, 2, 2),
    Sketcher.Constraint("Vertical", 3, 2, 5, 2),
    Sketcher.Constraint("Diameter", 6, 4.0),
    Sketcher.Constraint("Angle", 1, Q("120 deg")),
    Sketcher.Constraint("DistanceX", -1, 1, 6, 3, 10.0),
    Sketcher.Constraint("DistanceY", -1, 1, 6, 3, 60.0),
    Sketcher.Constraint("DistanceY", 0, 2, 2, 2, 7.0),
    Sketcher.Constraint("DistanceX", 0, 2, 0, 1, 4.041452),
    Sketcher.Constraint("DistanceX", -1, 1, 1, 2, 5.958548),
])
sketch13.setExpression("Constraints[14]", "Params.sketch13_diameter")
pocket6 = body6.newObject("PartDesign::Pocket", "Pocket005")
pocket6.Profile = sketch13
pocket6.setExpression("Length", "Params.pocket6_length")
pocket6.Reversed = True

# Sketch on XY plane
sketch14 = body6.newObject("Sketcher::SketchObject", "Sketch013")
sketch14.AttachmentSupport = (doc.getObject("XY_Plane005"), [""])
sketch14.MapMode = "FlatFace"
sketch14.AttachmentOffset = App.Placement(App.Vector(0, 0, 65), App.Rotation())
sketch14.addGeometry([
    Part.LineSegment(App.Vector(88.5, 12, 0), App.Vector(88.5, 8, 0)),  # 0
    Part.LineSegment(App.Vector(88.5, 8, 0), App.Vector(85, 6, 0)),  # 1
    Part.LineSegment(App.Vector(85, 6, 0), App.Vector(81.5, 8, 0)),  # 2
    Part.LineSegment(App.Vector(81.5, 8, 0), App.Vector(81.5, 12, 0)),  # 3
    Part.LineSegment(App.Vector(81.5, 12, 0), App.Vector(85, 14, 0)),  # 4
    Part.LineSegment(App.Vector(85, 14, 0), App.Vector(88.5, 12, 0)),  # 5
], False)
sketch14.addConstraint([
    Sketcher.Constraint("Coincident", 0, 2, 1, 1),
    Sketcher.Constraint("Coincident", 1, 2, 2, 1),
    Sketcher.Constraint("Coincident", 2, 2, 3, 1),
    Sketcher.Constraint("Coincident", 3, 2, 4, 1),
    Sketcher.Constraint("Coincident", 4, 2, 5, 1),
    Sketcher.Constraint("Coincident", 5, 2, 0, 1),
    Sketcher.Constraint("Vertical", 0),
    Sketcher.Constraint("Vertical", 3),
    Sketcher.Constraint("Parallel", 1, 4),
    Sketcher.Constraint("Parallel", 2, 5),
    Sketcher.Constraint("Horizontal", 0, 2, 2, 2),
    Sketcher.Constraint("Horizontal", 3, 2, 5, 2),
    Sketcher.Constraint("Vertical", 1, 2, 4, 2),
    Sketcher.Constraint("Angle", 1, Q("-150 deg")),
    Sketcher.Constraint("DistanceX", -1, 1, 1, 2, 85.0),
    Sketcher.Constraint("DistanceX", 2, 2, 0, 2, 7.0),
    Sketcher.Constraint("DistanceY", 0, 2, 0, 1, 4.041452),
    Sketcher.Constraint("DistanceY", -1, 1, 1, 2, 5.958548),
])
pocket7 = body6.newObject("PartDesign::Pocket", "Pocket006")
pocket7.Profile = sketch14
pocket7.setExpression("Length", "Params.pocket7_length")
pocket7.Reversed = True

# Sketch on XZ plane
sketch15 = body6.newObject("Sketcher::SketchObject", "Sketch014")
sketch15.AttachmentSupport = (doc.getObject("XZ_Plane005"), [""])
sketch15.MapMode = "FlatFace"
sketch15.AttachmentOffset = App.Placement(App.Vector(0, 0, -5), App.Rotation())
sketch15.addGeometry([
    Part.LineSegment(App.Vector(83, 63.5, 0), App.Vector(87, 63.5, 0)),  # 0
    Part.LineSegment(App.Vector(87, 63.5, 0), App.Vector(89, 60, 0)),  # 1
    Part.LineSegment(App.Vector(89, 60, 0), App.Vector(87, 56.5, 0)),  # 2
    Part.LineSegment(App.Vector(87, 56.5, 0), App.Vector(83, 56.5, 0)),  # 3
    Part.LineSegment(App.Vector(83, 56.5, 0), App.Vector(81, 60, 0)),  # 4
    Part.LineSegment(App.Vector(81, 60, 0), App.Vector(83, 63.5, 0)),  # 5
], False)
sketch15.addConstraint([
    Sketcher.Constraint("Coincident", 0, 2, 1, 1),
    Sketcher.Constraint("Coincident", 1, 2, 2, 1),
    Sketcher.Constraint("Coincident", 2, 2, 3, 1),
    Sketcher.Constraint("Coincident", 3, 2, 4, 1),
    Sketcher.Constraint("Coincident", 4, 2, 5, 1),
    Sketcher.Constraint("Coincident", 5, 2, 0, 1),
    Sketcher.Constraint("Horizontal", 0),
    Sketcher.Constraint("Horizontal", 3),
    Sketcher.Constraint("Parallel", 1, 4),
    Sketcher.Constraint("Parallel", 2, 5),
    Sketcher.Constraint("Horizontal", 1, 2, 4, 2),
    Sketcher.Constraint("Vertical", 0, 2, 2, 2),
    Sketcher.Constraint("Vertical", 3, 2, 5, 2),
    Sketcher.Constraint("Angle", 1, Q("-60 deg")),
    Sketcher.Constraint("DistanceY", -1, 1, 1, 2, 60.0),
    Sketcher.Constraint("DistanceY", 2, 2, 0, 2, 7.0),
    Sketcher.Constraint("DistanceX", 0, 1, 0, 2, 4.041452),
    Sketcher.Constraint("DistanceX", -1, 1, 1, 2, 89.041452),
])
pocket8 = body6.newObject("PartDesign::Pocket", "Pocket007")
pocket8.Profile = sketch15
pocket8.setExpression("Length", "Params.pocket8_length")
pocket8.Reversed = True
body7 = doc.addObject("PartDesign::Body", "Body006")

# Sketch on XZ plane
sketch16 = body7.newObject("Sketcher::SketchObject", "Sketch015")
sketch16.AttachmentSupport = (doc.getObject("XZ_Plane006"), [""])
sketch16.MapMode = "FlatFace"
sketch16.AttachmentOffset = App.Placement(App.Vector(0, 0, -100), App.Rotation())
sketch16.addGeometry([
    Part.LineSegment(App.Vector(-100, 75, 0), App.Vector(100, 75, 0)),  # 0
    Part.LineSegment(App.Vector(100, 75, 0), App.Vector(100, -82, 0)),  # 1
    Part.LineSegment(App.Vector(100, -82, 0), App.Vector(90, -82, 0)),  # 2
    Part.LineSegment(App.Vector(90, -82, 0), App.Vector(80, -75, 0)),  # 3
    Part.LineSegment(App.Vector(80, -75, 0), App.Vector(-80, -75, 0)),  # 4
    Part.LineSegment(App.Vector(-80, -75, 0), App.Vector(-90, -82, 0)),  # 5
    Part.LineSegment(App.Vector(-90, -82, 0), App.Vector(-100, -82, 0)),  # 6
    Part.LineSegment(App.Vector(-100, -82, 0), App.Vector(-100, 75, 0)),  # 7
    Part.Circle(App.Vector(85, -62.4, 0), App.Vector(0, 0, 1), 2),  # 8
    Part.Circle(App.Vector(-85, -60, 0), App.Vector(0, 0, 1), 2),  # 9
    Part.Circle(App.Vector(85, 60, 0), App.Vector(0, 0, 1), 2),  # 10
    Part.Circle(App.Vector(-85, 60, 0), App.Vector(0, 0, 1), 2),  # 11
], False)
sketch16.addConstraint([
    Sketcher.Constraint("Coincident", 0, 2, 1, 1),
    Sketcher.Constraint("Coincident", 1, 2, 2, 1),
    Sketcher.Constraint("Coincident", 2, 2, 3, 1),
    Sketcher.Constraint("Coincident", 3, 2, 4, 1),
    Sketcher.Constraint("Coincident", 4, 2, 5, 1),
    Sketcher.Constraint("Coincident", 5, 2, 6, 1),
    Sketcher.Constraint("Coincident", 6, 2, 7, 1),
    Sketcher.Constraint("Coincident", 7, 2, 0, 1),
    Sketcher.Constraint("Horizontal", 0),
    Sketcher.Constraint("Vertical", 1),
    Sketcher.Constraint("Horizontal", 2),
    Sketcher.Constraint("Horizontal", 4),
    Sketcher.Constraint("Horizontal", 6),
    Sketcher.Constraint("Vertical", 7),
    Sketcher.Constraint("Equal", 8, 9),
    Sketcher.Constraint("Equal", 9, 10),
    Sketcher.Constraint("Equal", 10, 11),
    Sketcher.Constraint("Symmetric", 9, 3, 10, 3, -1, 1),
    Sketcher.Constraint("Symmetric", 10, 3, 11, 3, -2),
    Sketcher.Constraint("Symmetric", 2, 2, 5, 2, -2),
    Sketcher.Constraint("Vertical", 8, 3, 10, 3),
    Sketcher.Constraint("Equal", 2, 6),
    Sketcher.Constraint("Equal", 3, 5),
    Sketcher.Constraint("Diameter", 8, 4.0),
    Sketcher.Constraint("DistanceX", 0, 1, 0, 2, 200.0),
    Sketcher.Constraint("DistanceX", 2, 2, 2, 1, 10.0),
    Sketcher.Constraint("DistanceX", 4, 2, 4, 1, 160.0),
    Sketcher.Constraint("DistanceY", 1, 2, 1, 1, 157.0),
    Sketcher.Constraint("DistanceX", -1, 1, 8, 3, 85.0),
    Sketcher.Constraint("DistanceY", 9, 3, -1, 1, 60.0),
    Sketcher.Constraint("DistanceY", -1, 1, 0, 2, 75.0),
    Sketcher.Constraint("DistanceY", 3, 2, -1, 1, 75.0),
    Sketcher.Constraint("DistanceY", 8, 3, -1, 1, 62.447857),
])
sketch16.setExpression("Constraints[23]", "Params.sketch16_diameter")
sketch16.setExpression("Constraints[24]", "Params.sketch16_width")
sketch16.setExpression("Constraints[25]", "Params.sketch16_width2")
sketch16.setExpression("Constraints[26]", "Params.sketch16_width3")
sketch16.setExpression("Constraints[27]", "Params.sketch16_height")
pad8 = body7.newObject("PartDesign::Pad", "Pad007")
pad8.Profile = sketch16
pad8.setExpression("Length", "Params.pad8_length")
pad8.Reversed = True
body8 = doc.addObject("PartDesign::Body", "Body007")

# Sketch on XY plane
sketch17 = body8.newObject("Sketcher::SketchObject", "Sketch016")
sketch17.AttachmentSupport = (doc.getObject("XY_Plane007"), [""])
sketch17.MapMode = "FlatFace"
sketch17.AttachmentOffset = App.Placement(App.Vector(0, 0, -75), App.Rotation())
sketch17.addGeometry([
    Part.LineSegment(App.Vector(50, 100, 0), App.Vector(95, 100, 0)),  # 0
    Part.LineSegment(App.Vector(95, 100, 0), App.Vector(95, 0, 0)),  # 1
    Part.LineSegment(App.Vector(95, 0, 0), App.Vector(-95, 0, 0)),  # 2
    Part.LineSegment(App.Vector(-95, 0, 0), App.Vector(-95, 100, 0)),  # 3
    Part.LineSegment(App.Vector(-95, 100, 0), App.Vector(-50, 100, 0)),  # 4
    Part.LineSegment(App.Vector(-50, 100, 0), App.Vector(-50, 80, 0)),  # 5
    Part.LineSegment(App.Vector(-50, 80, 0), App.Vector(50, 80, 0)),  # 6
    Part.LineSegment(App.Vector(50, 80, 0), App.Vector(50, 100, 0)),  # 7
    Part.Circle(App.Vector(-85, 90, 0), App.Vector(0, 0, 1), 2),  # 8
    Part.Circle(App.Vector(85, 90, 0), App.Vector(0, 0, 1), 2),  # 9
    Part.Circle(App.Vector(-85, 10, 0), App.Vector(0, 0, 1), 2),  # 10
    Part.Circle(App.Vector(85, 10, 0), App.Vector(0, 0, 1), 2),  # 11
], False)
sketch17.addConstraint([
    Sketcher.Constraint("Coincident", 0, 2, 1, 1),
    Sketcher.Constraint("Coincident", 1, 2, 2, 1),
    Sketcher.Constraint("Coincident", 2, 2, 3, 1),
    Sketcher.Constraint("Coincident", 3, 2, 4, 1),
    Sketcher.Constraint("Coincident", 4, 2, 5, 1),
    Sketcher.Constraint("Coincident", 5, 2, 6, 1),
    Sketcher.Constraint("Coincident", 6, 2, 7, 1),
    Sketcher.Constraint("Coincident", 7, 2, 0, 1),
    Sketcher.Constraint("Horizontal", 0),
    Sketcher.Constraint("Vertical", 1),
    Sketcher.Constraint("Horizontal", 2),
    Sketcher.Constraint("Vertical", 3),
    Sketcher.Constraint("Horizontal", 4),
    Sketcher.Constraint("Vertical", 5),
    Sketcher.Constraint("Horizontal", 6),
    Sketcher.Constraint("Vertical", 7),
    Sketcher.Constraint("Equal", 8, 9),
    Sketcher.Constraint("Equal", 9, 10),
    Sketcher.Constraint("Equal", 10, 11),
    Sketcher.Constraint("Symmetric", 1, 2, 2, 2, -1, 1),
    Sketcher.Constraint("Symmetric", 8, 3, 9, 3, -2),
    Sketcher.Constraint("Symmetric", 10, 3, 11, 3, -2),
    Sketcher.Constraint("Symmetric", 4, 2, 7, 2, -2),
    Sketcher.Constraint("Vertical", 8, 3, 10, 3),
    Sketcher.Constraint("Equal", 6, 1),
    Sketcher.Constraint("Diameter", 8, 4.0),
    Sketcher.Constraint("DistanceX", 0, 1, 0, 2, 45.0),
    Sketcher.Constraint("DistanceX", 2, 2, 2, 1, 190.0),
    Sketcher.Constraint("DistanceY", 5, 2, 5, 1, 20.0),
    Sketcher.Constraint("DistanceX", 8, 3, -1, 1, 85.0),
    Sketcher.Constraint("DistanceY", -1, 1, 8, 3, 90.0),
    Sketcher.Constraint("DistanceY", -1, 1, 10, 3, 10.0),
])
sketch17.setExpression("Constraints[25]", "Params.sketch17_diameter")
sketch17.setExpression("Constraints[26]", "Params.sketch17_width")
sketch17.setExpression("Constraints[27]", "Params.sketch17_width2")
sketch17.setExpression("Constraints[28]", "Params.sketch17_height")
pad9 = body8.newObject("PartDesign::Pad", "Pad008")
pad9.Profile = sketch17
pad9.setExpression("Length", "Params.pad9_length")

doc.recompute()
